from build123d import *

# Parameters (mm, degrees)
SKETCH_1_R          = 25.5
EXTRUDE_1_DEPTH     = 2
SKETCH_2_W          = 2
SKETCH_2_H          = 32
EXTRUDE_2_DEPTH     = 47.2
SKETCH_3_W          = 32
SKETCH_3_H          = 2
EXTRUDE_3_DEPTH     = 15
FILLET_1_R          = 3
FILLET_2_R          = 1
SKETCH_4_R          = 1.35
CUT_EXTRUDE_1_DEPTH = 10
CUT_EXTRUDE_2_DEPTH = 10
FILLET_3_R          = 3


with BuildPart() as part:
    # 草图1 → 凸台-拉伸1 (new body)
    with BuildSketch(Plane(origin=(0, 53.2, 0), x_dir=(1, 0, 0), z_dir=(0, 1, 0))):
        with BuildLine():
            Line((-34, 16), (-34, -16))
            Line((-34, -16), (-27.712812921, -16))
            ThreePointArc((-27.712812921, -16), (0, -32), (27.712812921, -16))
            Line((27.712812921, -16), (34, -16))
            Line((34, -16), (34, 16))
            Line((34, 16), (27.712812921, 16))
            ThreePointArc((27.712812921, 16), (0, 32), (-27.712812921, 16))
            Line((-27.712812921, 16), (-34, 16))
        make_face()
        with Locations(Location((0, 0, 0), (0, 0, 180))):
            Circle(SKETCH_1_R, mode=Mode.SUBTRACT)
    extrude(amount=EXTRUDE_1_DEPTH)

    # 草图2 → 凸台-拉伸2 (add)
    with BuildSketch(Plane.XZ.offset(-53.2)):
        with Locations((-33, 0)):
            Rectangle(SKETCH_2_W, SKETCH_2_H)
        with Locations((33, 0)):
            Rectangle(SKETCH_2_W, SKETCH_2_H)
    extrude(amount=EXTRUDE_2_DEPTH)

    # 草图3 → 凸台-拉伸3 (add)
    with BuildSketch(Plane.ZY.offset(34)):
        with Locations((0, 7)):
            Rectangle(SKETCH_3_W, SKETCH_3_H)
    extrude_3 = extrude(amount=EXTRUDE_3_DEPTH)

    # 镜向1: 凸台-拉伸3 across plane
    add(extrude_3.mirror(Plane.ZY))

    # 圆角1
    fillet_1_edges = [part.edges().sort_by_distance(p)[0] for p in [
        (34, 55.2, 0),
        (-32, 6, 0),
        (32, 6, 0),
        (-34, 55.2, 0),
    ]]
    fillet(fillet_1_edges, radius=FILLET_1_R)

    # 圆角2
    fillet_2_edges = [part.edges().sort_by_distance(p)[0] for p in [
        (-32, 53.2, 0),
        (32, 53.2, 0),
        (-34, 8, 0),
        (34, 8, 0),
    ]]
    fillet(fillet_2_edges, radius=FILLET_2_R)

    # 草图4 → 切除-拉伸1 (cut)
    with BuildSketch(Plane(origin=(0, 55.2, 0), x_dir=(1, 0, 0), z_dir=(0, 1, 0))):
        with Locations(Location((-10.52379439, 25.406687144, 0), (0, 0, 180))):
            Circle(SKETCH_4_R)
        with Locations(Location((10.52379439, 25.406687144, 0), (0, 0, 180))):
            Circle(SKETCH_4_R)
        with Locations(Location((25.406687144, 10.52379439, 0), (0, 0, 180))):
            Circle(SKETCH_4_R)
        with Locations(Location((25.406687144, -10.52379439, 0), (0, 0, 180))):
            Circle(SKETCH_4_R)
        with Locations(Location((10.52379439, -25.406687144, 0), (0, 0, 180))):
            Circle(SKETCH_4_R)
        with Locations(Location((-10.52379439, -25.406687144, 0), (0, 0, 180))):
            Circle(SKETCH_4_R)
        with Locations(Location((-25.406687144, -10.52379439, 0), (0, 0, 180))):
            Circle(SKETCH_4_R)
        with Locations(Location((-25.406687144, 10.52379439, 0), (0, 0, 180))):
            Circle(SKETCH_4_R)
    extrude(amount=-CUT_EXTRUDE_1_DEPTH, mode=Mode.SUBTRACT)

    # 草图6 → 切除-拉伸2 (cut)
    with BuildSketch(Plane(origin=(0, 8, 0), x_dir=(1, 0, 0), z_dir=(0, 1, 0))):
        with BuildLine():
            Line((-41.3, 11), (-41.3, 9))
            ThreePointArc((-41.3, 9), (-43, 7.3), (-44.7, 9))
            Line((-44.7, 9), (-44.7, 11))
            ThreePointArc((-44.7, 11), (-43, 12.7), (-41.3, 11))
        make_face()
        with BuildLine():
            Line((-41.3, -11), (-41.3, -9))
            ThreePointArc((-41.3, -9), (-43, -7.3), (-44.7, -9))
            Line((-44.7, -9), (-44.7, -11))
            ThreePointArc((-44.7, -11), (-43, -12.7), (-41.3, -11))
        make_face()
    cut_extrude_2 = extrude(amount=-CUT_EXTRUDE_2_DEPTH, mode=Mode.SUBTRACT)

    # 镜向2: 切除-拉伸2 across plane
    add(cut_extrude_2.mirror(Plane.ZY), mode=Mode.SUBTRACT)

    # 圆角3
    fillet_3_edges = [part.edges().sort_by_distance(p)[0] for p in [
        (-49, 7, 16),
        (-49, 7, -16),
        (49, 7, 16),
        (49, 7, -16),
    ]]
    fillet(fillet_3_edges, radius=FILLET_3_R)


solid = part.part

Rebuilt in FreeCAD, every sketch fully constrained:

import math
import FreeCAD as App
import Part
import Sketcher

V = App.Vector


def edges_at(feature, points):
    """Names of the edges that pass closest to the given points."""
    edges = feature.Shape.Edges
    near = lambda p: min(range(len(edges)), key=lambda i: edges[i].distToShape(Part.Vertex(*p))[0])
    return sorted({f"Edge{near(p) + 1}" for p in points})


def add_polygon(sketch, points):
    """Adds a closed chain of lines whose ends are joined by coincident constraints."""
    first, n = sketch.GeometryCount, len(points)
    for a, b in zip(points, points[1:] + points[:1]):
        sketch.addGeometry(Part.LineSegment(App.Vector(*a, 0), App.Vector(*b, 0)), False)
    for i in range(n):
        sketch.addConstraint(Sketcher.Constraint("Coincident", first + i, 2, first + (i + 1) % n, 1))

doc = App.newDocument("Part")
body = doc.addObject("PartDesign::Body", "Body")

sketch1 = doc.addObject("Sketcher::SketchObject", "Sketch")
body.addObject(sketch1)
sketch1.AttachmentSupport = (doc.XZ_Plane, [""])
sketch1.MapMode = "FlatFace"
sketch1.AttachmentOffset = App.Placement(V(0, 0, -53.2), App.Rotation())
sketch1.addGeometry(Part.LineSegment(V(-34, -16, 0), V(-34, 16, 0)), False)
sketch1.addGeometry(Part.LineSegment(V(-34, 16, 0), V(-27.712813, 16, 0)), False)
sketch1.addGeometry(Part.ArcOfCircle(Part.Circle(V(0, 0, 0), V(0, 0, 1), 32), math.radians(30), math.radians(150)), False)
sketch1.addGeometry(Part.LineSegment(V(27.712813, 16, 0), V(34, 16, 0)), False)
sketch1.addGeometry(Part.LineSegment(V(34, 16, 0), V(34, -16, 0)), False)
sketch1.addGeometry(Part.LineSegment(V(34, -16, 0), V(27.712813, -16, 0)), False)
sketch1.addGeometry(Part.ArcOfCircle(Part.Circle(V(0, 0, 0), V(0, 0, 1), 32), math.radians(-150), math.radians(-30)), False)
sketch1.addGeometry(Part.LineSegment(V(-27.712813, -16, 0), V(-34, -16, 0)), False)
sketch1.addGeometry(Part.Circle(V(0, 0, 0), V(0, 0, 1), 25.5), False)
sketch1.addConstraint(Sketcher.Constraint("Coincident", 0, 2, 1, 1))
sketch1.addConstraint(Sketcher.Constraint("Coincident", 1, 2, 2, 2))
sketch1.addConstraint(Sketcher.Constraint("Coincident", 2, 1, 3, 1))
sketch1.addConstraint(Sketcher.Constraint("Coincident", 3, 2, 4, 1))
sketch1.addConstraint(Sketcher.Constraint("Coincident", 4, 2, 5, 1))
sketch1.addConstraint(Sketcher.Constraint("Coincident", 5, 2, 6, 2))
sketch1.addConstraint(Sketcher.Constraint("Coincident", 6, 1, 7, 1))
sketch1.addConstraint(Sketcher.Constraint("Coincident", 7, 2, 0, 1))
sketch1.addConstraint(Sketcher.Constraint("Vertical", 0))
sketch1.addConstraint(Sketcher.Constraint("Horizontal", 1))
sketch1.addConstraint(Sketcher.Constraint("Horizontal", 3))
sketch1.addConstraint(Sketcher.Constraint("Vertical", 4))
sketch1.addConstraint(Sketcher.Constraint("Horizontal", 5))
sketch1.addConstraint(Sketcher.Constraint("Horizontal", 7))
sketch1.addConstraint(Sketcher.Constraint("Coincident", 2, 3, -1, 1))
sketch1.addConstraint(Sketcher.Constraint("Coincident", 6, 3, -1, 1))
sketch1.addConstraint(Sketcher.Constraint("Coincident", 8, 3, -1, 1))
sketch1.addConstraint(Sketcher.Constraint("Equal", 2, 6))
sketch1.addConstraint(Sketcher.Constraint("Symmetric", 0, 2, 4, 2, -1, 1))
sketch1.addConstraint(Sketcher.Constraint("Horizontal", 1, 2, 2, 1))
sketch1.addConstraint(Sketcher.Constraint("Horizontal", 5, 2, 6, 1))
sketch1.addConstraint(Sketcher.Constraint("Diameter", 8, 51.0))
sketch1.addConstraint(Sketcher.Constraint("Radius", 2, 32.0))
sketch1.addConstraint(Sketcher.Constraint("DistanceY", 0, 1, 0, 2, 32.0))
sketch1.addConstraint(Sketcher.Constraint("DistanceX", 0, 2, -1, 1, 34.0))
pad1 = doc.addObject("PartDesign::Pad", "Pad")
body.addObject(pad1)
pad1.Profile = sketch1
pad1.Length = 2
pad1.Reversed = True

sketch2 = doc.addObject("Sketcher::SketchObject", "Sketch001")
body.addObject(sketch2)
sketch2.AttachmentSupport = (doc.XZ_Plane, [""])
sketch2.MapMode = "FlatFace"
sketch2.AttachmentOffset = App.Placement(V(0, 0, -53.2), App.Rotation())
add_polygon(sketch2, [(-34, 16), (-34, -16), (-32, -16), (-32, 16)])
add_polygon(sketch2, [(32, 16), (32, -16), (34, -16), (34, 16)])
sketch2.addConstraint(Sketcher.Constraint("Vertical", 0))
sketch2.addConstraint(Sketcher.Constraint("Horizontal", 1))
sketch2.addConstraint(Sketcher.Constraint("Vertical", 2))
sketch2.addConstraint(Sketcher.Constraint("Horizontal", 3))
sketch2.addConstraint(Sketcher.Constraint("Vertical", 4))
sketch2.addConstraint(Sketcher.Constraint("Horizontal", 5))
sketch2.addConstraint(Sketcher.Constraint("Vertical", 6))
sketch2.addConstraint(Sketcher.Constraint("Horizontal", 7))
sketch2.addConstraint(Sketcher.Constraint("Symmetric", 2, 2, 4, 2, -1, 1))
sketch2.addConstraint(Sketcher.Constraint("Symmetric", 0, 2, 6, 2, -1, 1))
sketch2.addConstraint(Sketcher.Constraint("Horizontal", 1, 2, 4, 2))
sketch2.addConstraint(Sketcher.Constraint("DistanceX", 1, 1, 1, 2, 2.0))
sketch2.addConstraint(Sketcher.Constraint("DistanceY", 0, 2, 0, 1, 32.0))
sketch2.addConstraint(Sketcher.Constraint("DistanceX", 0, 2, -1, 1, 34.0))
pad2 = doc.addObject("PartDesign::Pad", "Pad001")
body.addObject(pad2)
pad2.Profile = sketch2
pad2.Length = 47.2

sketch3 = doc.addObject("Sketcher::SketchObject", "Sketch002")
body.addObject(sketch3)
sketch3.AttachmentSupport = (doc.YZ_Plane, [""])
sketch3.MapMode = "FlatFace"
sketch3.AttachmentOffset = App.Placement(V(0, 0, -34), App.Rotation())
add_polygon(sketch3, [(8, -16), (6, -16), (6, 16), (8, 16)])
sketch3.addConstraint(Sketcher.Constraint("Horizontal", 0))
sketch3.addConstraint(Sketcher.Constraint("Vertical", 1))
sketch3.addConstraint(Sketcher.Constraint("Horizontal", 2))
sketch3.addConstraint(Sketcher.Constraint("Vertical", 3))
sketch3.addConstraint(Sketcher.Constraint("DistanceX", 0, 2, 0, 1, 2.0))
sketch3.addConstraint(Sketcher.Constraint("DistanceY", 1, 1, 1, 2, 32.0))
sketch3.addConstraint(Sketcher.Constraint("DistanceX", -1, 1, 0, 2, 6.0))
sketch3.addConstraint(Sketcher.Constraint("DistanceY", 0, 2, -1, 1, 16.0))
pad3 = doc.addObject("PartDesign::Pad", "Pad002")
body.addObject(pad3)
pad3.Profile = sketch3
pad3.Length = 15
pad3.Reversed = True
doc.recompute()

mirrored = doc.addObject("PartDesign::Mirrored", "Mirrored")
body.addObject(mirrored)
mirrored.Originals = [pad3]
mirrored.MirrorPlane = (doc.YZ_Plane, [""])
body.Tip = mirrored
doc.recompute()

fillet = doc.addObject("PartDesign::Fillet", "Fillet")
body.addObject(fillet)
fillet.Base = (mirrored, edges_at(mirrored, [
    (34, 55.2, 0),
    (-32, 6, 0),
    (32, 6, 0),
    (-34, 55.2, 0),
]))
fillet.Radius = 3
doc.recompute()

fillet2 = doc.addObject("PartDesign::Fillet", "Fillet001")
body.addObject(fillet2)
fillet2.Base = (fillet, edges_at(fillet, [
    (-32, 53.2, 0),
    (32, 53.2, 0),
    (-34, 8, 0),
    (34, 8, 0),
]))
fillet2.Radius = 1

sketch4 = doc.addObject("Sketcher::SketchObject", "Sketch003")
body.addObject(sketch4)
sketch4.AttachmentSupport = (doc.XZ_Plane, [""])
sketch4.MapMode = "FlatFace"
sketch4.AttachmentOffset = App.Placement(V(0, 0, -55.2), App.Rotation())
sketch4.addGeometry(Part.Circle(V(-10.523794, -25.406687, 0), V(0, 0, 1), 1.35), False)
sketch4.addGeometry(Part.Circle(V(10.523794, -25.406687, 0), V(0, 0, 1), 1.35), False)
sketch4.addGeometry(Part.Circle(V(25.406687, -10.523794, 0), V(0, 0, 1), 1.35), False)
sketch4.addGeometry(Part.Circle(V(25.406687, 10.523794, 0), V(0, 0, 1), 1.35), False)
sketch4.addGeometry(Part.Circle(V(10.523794, 25.406687, 0), V(0, 0, 1), 1.35), False)
sketch4.addGeometry(Part.Circle(V(-10.523794, 25.406687, 0), V(0, 0, 1), 1.35), False)
sketch4.addGeometry(Part.Circle(V(-25.406687, 10.523794, 0), V(0, 0, 1), 1.35), False)
sketch4.addGeometry(Part.Circle(V(-25.406687, -10.523794, 0), V(0, 0, 1), 1.35), False)
sketch4.addConstraint(Sketcher.Constraint("Equal", 0, 1))
sketch4.addConstraint(Sketcher.Constraint("Equal", 1, 2))
sketch4.addConstraint(Sketcher.Constraint("Equal", 2, 3))
sketch4.addConstraint(Sketcher.Constraint("Equal", 3, 4))
sketch4.addConstraint(Sketcher.Constraint("Equal", 4, 5))
sketch4.addConstraint(Sketcher.Constraint("Equal", 5, 6))
sketch4.addConstraint(Sketcher.Constraint("Equal", 6, 7))
sketch4.addConstraint(Sketcher.Constraint("Symmetric", 0, 3, 4, 3, -1, 1))
sketch4.addConstraint(Sketcher.Constraint("Symmetric", 1, 3, 5, 3, -1, 1))
sketch4.addConstraint(Sketcher.Constraint("Symmetric", 2, 3, 6, 3, -1, 1))
sketch4.addConstraint(Sketcher.Constraint("Symmetric", 3, 3, 7, 3, -1, 1))
sketch4.addConstraint(Sketcher.Constraint("Symmetric", 0, 3, 1, 3, -2))
sketch4.addConstraint(Sketcher.Constraint("Symmetric", 3, 3, 6, 3, -2))
sketch4.addConstraint(Sketcher.Constraint("Diameter", 0, 2.7))
sketch4.addConstraint(Sketcher.Constraint("DistanceX", 0, 3, 1, 3, 21.047589))
sketch4.addConstraint(Sketcher.Constraint("DistanceX", 0, 3, 2, 3, 35.930482))
sketch4.addConstraint(Sketcher.Constraint("DistanceY", 2, 3, 3, 3, 21.047589))
sketch4.addConstraint(Sketcher.Constraint("DistanceY", 1, 3, 3, 3, 35.930482))
pocket1 = doc.addObject("PartDesign::Pocket", "Pocket")
body.addObject(pocket1)
pocket1.Profile = sketch4
pocket1.Length = 10
pocket1.Reversed = True

sketch5 = doc.addObject("Sketcher::SketchObject", "Sketch004")
body.addObject(sketch5)
sketch5.AttachmentSupport = (doc.XZ_Plane, [""])
sketch5.MapMode = "FlatFace"
sketch5.AttachmentOffset = App.Placement(V(0, 0, -8), App.Rotation())
sketch5.addGeometry(Part.LineSegment(V(-41.3, -9, 0), V(-41.3, -11, 0)), False)
sketch5.addGeometry(Part.ArcOfCircle(Part.Circle(V(-43, -11, 0), V(0, 0, 1), 1.7), math.radians(180), math.radians(360)), False)
sketch5.addGeometry(Part.LineSegment(V(-44.7, -11, 0), V(-44.7, -9, 0)), False)
sketch5.addGeometry(Part.ArcOfCircle(Part.Circle(V(-43, -9, 0), V(0, 0, 1), 1.7), math.radians(0), math.radians(180)), False)
sketch5.addGeometry(Part.LineSegment(V(-41.3, 11, 0), V(-41.3, 9, 0)), False)
sketch5.addGeometry(Part.ArcOfCircle(Part.Circle(V(-43, 9, 0), V(0, 0, 1), 1.7), math.radians(180), math.radians(360)), False)
sketch5.addGeometry(Part.LineSegment(V(-44.7, 9, 0), V(-44.7, 11, 0)), False)
sketch5.addGeometry(Part.ArcOfCircle(Part.Circle(V(-43, 11, 0), V(0, 0, 1), 1.7), math.radians(0), math.radians(180)), False)
sketch5.addConstraint(Sketcher.Constraint("Tangent", 0, 2, 1, 2))
sketch5.addConstraint(Sketcher.Constraint("Tangent", 1, 1, 2, 1))
sketch5.addConstraint(Sketcher.Constraint("Tangent", 2, 2, 3, 2))
sketch5.addConstraint(Sketcher.Constraint("Tangent", 3, 1, 0, 1))
sketch5.addConstraint(Sketcher.Constraint("Tangent", 4, 2, 5, 2))
sketch5.addConstraint(Sketcher.Constraint("Tangent", 5, 1, 6, 1))
sketch5.addConstraint(Sketcher.Constraint("Tangent", 6, 2, 7, 2))
sketch5.addConstraint(Sketcher.Constraint("Tangent", 7, 1, 4, 1))
sketch5.addConstraint(Sketcher.Constraint("Vertical", 0))
sketch5.addConstraint(Sketcher.Constraint("Vertical", 2))
sketch5.addConstraint(Sketcher.Constraint("Vertical", 4))
sketch5.addConstraint(Sketcher.Constraint("Vertical", 6))
sketch5.addConstraint(Sketcher.Constraint("Equal", 3, 5))
sketch5.addConstraint(Sketcher.Constraint("Symmetric", 3, 3, 5, 3, -1))
sketch5.addConstraint(Sketcher.Constraint("Equal", 2, 4))
sketch5.addConstraint(Sketcher.Constraint("Radius", 1, 1.7))
sketch5.addConstraint(Sketcher.Constraint("DistanceY", 0, 2, 0, 1, 2.0))
sketch5.addConstraint(Sketcher.Constraint("DistanceX", 1, 3, -1, 1, 43.0))
sketch5.addConstraint(Sketcher.Constraint("DistanceY", 1, 3, -1, 1, 11.0))
pocket2 = doc.addObject("PartDesign::Pocket", "Pocket001")
body.addObject(pocket2)
pocket2.Profile = sketch5
pocket2.Length = 10
pocket2.Reversed = True
doc.recompute()

mirrored2 = doc.addObject("PartDesign::Mirrored", "Mirrored001")
body.addObject(mirrored2)
mirrored2.Originals = [pocket2]
mirrored2.MirrorPlane = (doc.YZ_Plane, [""])
body.Tip = mirrored2
doc.recompute()

fillet3 = doc.addObject("PartDesign::Fillet", "Fillet002")
body.addObject(fillet3)
fillet3.Base = (mirrored2, edges_at(mirrored2, [
    (-49, 7, 16),
    (-49, 7, -16),
    (49, 7, 16),
    (49, 7, -16),
]))
fillet3.Radius = 3

doc.recompute()
